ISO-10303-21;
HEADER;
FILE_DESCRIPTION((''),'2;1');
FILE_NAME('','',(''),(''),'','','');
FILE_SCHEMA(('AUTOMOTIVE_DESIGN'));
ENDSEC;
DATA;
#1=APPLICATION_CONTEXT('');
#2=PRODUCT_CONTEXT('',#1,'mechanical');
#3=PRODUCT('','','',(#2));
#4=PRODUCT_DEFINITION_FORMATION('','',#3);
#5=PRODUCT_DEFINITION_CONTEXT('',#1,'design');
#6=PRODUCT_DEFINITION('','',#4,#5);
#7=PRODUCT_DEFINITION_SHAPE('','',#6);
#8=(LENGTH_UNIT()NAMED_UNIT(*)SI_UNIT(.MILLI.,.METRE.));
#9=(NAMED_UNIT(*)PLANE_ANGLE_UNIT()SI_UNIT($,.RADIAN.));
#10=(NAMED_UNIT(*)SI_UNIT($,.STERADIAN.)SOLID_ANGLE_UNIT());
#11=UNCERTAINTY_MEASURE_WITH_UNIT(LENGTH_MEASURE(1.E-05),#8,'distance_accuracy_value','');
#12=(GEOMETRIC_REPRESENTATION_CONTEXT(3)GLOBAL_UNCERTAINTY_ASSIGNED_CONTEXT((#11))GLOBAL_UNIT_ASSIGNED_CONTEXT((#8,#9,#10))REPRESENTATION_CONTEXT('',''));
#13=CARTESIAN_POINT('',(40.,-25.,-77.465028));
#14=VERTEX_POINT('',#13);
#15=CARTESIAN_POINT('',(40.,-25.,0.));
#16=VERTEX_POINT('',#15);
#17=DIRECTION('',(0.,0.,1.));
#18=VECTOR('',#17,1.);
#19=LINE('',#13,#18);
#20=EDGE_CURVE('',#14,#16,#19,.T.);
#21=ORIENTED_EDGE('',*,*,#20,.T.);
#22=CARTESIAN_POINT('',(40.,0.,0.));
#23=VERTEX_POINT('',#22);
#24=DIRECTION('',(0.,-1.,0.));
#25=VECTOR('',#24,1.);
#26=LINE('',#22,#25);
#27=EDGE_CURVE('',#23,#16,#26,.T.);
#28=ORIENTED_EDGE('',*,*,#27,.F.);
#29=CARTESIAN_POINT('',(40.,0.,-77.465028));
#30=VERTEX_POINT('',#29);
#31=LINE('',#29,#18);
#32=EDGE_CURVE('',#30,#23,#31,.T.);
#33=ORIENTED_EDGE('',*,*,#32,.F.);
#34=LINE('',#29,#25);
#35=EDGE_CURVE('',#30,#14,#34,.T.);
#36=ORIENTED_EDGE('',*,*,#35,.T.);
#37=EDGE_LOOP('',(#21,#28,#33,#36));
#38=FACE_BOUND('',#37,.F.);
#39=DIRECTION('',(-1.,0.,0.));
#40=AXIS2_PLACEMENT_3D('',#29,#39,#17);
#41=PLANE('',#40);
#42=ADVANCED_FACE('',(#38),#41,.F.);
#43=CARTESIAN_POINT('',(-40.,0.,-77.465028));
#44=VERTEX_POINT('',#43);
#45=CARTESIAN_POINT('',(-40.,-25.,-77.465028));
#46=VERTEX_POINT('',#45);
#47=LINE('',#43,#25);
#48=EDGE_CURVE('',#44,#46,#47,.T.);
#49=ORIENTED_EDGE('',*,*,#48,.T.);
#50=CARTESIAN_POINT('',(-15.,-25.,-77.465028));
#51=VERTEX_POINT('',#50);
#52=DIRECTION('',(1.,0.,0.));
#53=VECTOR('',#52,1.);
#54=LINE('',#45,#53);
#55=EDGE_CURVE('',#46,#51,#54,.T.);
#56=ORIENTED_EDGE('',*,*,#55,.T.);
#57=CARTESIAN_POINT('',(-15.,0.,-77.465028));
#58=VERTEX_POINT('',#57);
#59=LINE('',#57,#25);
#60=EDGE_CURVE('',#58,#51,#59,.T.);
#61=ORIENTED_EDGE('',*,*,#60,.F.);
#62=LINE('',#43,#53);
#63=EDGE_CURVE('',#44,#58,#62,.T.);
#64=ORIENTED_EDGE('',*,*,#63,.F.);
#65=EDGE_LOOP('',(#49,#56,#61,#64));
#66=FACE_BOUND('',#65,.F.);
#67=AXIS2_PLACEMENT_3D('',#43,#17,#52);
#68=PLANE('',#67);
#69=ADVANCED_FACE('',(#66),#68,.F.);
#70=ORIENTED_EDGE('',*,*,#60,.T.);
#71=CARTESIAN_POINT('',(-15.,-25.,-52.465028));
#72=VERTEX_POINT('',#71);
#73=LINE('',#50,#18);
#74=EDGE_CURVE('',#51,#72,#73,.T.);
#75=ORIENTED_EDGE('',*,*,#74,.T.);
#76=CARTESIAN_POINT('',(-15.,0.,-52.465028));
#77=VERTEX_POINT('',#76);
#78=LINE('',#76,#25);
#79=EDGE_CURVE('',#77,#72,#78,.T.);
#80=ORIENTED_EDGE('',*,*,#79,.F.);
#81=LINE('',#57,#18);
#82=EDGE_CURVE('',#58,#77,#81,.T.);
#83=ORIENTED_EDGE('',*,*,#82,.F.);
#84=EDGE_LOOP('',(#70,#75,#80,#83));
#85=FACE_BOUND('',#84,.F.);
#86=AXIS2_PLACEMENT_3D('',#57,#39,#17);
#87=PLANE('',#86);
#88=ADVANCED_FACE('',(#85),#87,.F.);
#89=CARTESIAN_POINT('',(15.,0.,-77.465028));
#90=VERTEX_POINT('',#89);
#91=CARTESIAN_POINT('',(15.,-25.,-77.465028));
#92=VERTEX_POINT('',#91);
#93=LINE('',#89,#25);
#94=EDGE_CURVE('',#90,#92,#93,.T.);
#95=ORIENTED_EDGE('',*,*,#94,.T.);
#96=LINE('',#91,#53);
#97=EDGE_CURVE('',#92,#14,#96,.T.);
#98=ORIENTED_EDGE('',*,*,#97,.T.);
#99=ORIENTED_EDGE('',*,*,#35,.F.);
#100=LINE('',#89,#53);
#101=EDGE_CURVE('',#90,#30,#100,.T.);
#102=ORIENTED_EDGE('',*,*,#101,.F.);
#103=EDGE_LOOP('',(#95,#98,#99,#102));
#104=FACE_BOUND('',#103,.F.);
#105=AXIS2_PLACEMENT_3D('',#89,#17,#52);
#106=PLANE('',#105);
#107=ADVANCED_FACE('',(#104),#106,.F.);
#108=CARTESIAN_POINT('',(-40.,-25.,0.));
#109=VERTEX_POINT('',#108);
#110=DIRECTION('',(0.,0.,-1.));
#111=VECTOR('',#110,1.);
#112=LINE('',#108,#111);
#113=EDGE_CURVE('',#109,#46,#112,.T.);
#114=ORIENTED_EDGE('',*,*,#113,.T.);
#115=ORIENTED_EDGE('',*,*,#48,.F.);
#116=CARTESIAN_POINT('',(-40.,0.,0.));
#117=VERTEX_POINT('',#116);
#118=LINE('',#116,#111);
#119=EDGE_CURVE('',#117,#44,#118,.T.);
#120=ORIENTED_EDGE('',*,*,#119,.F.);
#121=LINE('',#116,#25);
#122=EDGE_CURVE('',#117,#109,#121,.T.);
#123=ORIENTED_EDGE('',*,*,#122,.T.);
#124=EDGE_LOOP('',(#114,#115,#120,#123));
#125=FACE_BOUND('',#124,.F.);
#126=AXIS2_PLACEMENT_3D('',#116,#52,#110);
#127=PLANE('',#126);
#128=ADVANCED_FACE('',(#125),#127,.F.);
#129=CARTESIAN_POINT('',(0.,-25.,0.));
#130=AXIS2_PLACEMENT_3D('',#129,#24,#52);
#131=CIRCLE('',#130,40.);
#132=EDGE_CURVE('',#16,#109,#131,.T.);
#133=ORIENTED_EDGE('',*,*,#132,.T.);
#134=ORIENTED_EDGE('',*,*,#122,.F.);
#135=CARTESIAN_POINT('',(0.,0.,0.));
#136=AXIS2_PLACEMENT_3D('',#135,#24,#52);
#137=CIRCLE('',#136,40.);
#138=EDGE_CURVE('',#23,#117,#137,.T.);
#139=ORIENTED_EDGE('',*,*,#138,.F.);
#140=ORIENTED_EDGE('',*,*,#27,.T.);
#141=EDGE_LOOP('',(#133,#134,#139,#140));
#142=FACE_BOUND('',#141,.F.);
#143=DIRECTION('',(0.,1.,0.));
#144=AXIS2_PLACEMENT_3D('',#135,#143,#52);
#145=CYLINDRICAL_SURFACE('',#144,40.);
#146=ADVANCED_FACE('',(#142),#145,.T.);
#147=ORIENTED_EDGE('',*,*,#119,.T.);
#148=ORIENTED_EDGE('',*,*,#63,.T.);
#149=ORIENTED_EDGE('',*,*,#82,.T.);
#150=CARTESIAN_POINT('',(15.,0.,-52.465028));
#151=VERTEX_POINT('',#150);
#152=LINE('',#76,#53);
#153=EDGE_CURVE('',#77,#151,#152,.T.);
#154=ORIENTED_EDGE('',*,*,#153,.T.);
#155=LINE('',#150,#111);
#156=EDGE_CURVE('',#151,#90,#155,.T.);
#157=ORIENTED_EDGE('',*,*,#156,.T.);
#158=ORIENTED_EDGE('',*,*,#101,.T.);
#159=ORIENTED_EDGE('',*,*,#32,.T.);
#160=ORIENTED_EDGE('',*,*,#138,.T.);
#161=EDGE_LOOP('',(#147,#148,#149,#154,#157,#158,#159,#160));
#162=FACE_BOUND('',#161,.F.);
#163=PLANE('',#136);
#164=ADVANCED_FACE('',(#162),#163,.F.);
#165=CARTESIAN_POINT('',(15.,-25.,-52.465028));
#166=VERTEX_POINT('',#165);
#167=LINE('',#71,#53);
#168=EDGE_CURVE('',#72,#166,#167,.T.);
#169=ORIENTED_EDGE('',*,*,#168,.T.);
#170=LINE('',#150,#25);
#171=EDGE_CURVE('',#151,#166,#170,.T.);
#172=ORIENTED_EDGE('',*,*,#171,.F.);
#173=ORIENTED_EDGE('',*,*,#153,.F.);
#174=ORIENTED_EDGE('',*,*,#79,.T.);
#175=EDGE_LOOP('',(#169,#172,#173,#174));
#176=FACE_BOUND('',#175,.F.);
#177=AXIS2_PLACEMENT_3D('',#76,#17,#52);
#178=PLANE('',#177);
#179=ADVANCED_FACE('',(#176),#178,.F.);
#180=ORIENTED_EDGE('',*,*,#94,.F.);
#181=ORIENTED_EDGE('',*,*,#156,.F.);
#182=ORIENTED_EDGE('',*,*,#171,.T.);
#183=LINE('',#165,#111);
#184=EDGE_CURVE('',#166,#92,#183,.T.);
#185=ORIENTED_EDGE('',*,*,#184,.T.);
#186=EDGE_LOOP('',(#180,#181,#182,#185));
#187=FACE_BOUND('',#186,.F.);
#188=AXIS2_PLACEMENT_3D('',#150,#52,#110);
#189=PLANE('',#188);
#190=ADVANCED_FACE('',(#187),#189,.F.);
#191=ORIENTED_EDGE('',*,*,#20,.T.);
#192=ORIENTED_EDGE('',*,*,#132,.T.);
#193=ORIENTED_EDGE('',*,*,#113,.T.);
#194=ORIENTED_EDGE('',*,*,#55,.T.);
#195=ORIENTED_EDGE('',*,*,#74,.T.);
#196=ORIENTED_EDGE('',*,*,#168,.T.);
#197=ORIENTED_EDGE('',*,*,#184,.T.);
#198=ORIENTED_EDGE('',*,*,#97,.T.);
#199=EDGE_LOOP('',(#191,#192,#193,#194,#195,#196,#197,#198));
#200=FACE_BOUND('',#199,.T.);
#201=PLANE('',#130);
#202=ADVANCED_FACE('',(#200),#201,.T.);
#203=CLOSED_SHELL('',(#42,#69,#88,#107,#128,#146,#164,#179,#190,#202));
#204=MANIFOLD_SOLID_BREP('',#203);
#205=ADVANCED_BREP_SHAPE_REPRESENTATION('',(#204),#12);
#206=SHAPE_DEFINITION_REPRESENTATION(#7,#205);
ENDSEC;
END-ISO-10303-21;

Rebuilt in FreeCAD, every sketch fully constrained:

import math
import FreeCAD as App
import Part
import Sketcher
from FreeCAD import Vector
Q = App.Units.Quantity

doc = App.newDocument("Part")
body = doc.addObject("PartDesign::Body", "Body")

sketch1 = body.newObject("Sketcher::SketchObject", "Sketch")
sketch1.AttachmentSupport = (doc.getObject("XZ_Plane"), [""])
sketch1.MapMode = "FlatFace"
sketch1.addGeometry(Part.ArcOfCircle(Part.Circle(Vector(0, 0, 0), Vector(0, 0, 1), 40), math.radians(0), math.radians(180)), False)
sketch1.addGeometry(Part.LineSegment(Vector(-40, 0, 0), Vector(-40, -77.465028, 0)), False)
sketch1.addGeometry(Part.LineSegment(Vector(-40, -77.465028, 0), Vector(-15, -77.465028, 0)), False)
sketch1.addGeometry(Part.LineSegment(Vector(-15, -77.465028, 0), Vector(-15, -52.465028, 0)), False)
sketch1.addGeometry(Part.LineSegment(Vector(-15, -52.465028, 0), Vector(15, -52.465028, 0)), False)
sketch1.addGeometry(Part.LineSegment(Vector(15, -52.465028, 0), Vector(15, -77.465028, 0)), False)
sketch1.addGeometry(Part.LineSegment(Vector(15, -77.465028, 0), Vector(40, -77.465028, 0)), False)
sketch1.addGeometry(Part.LineSegment(Vector(40, -77.465028, 0), Vector(40, 0, 0)), False)
sketch1.addConstraint(Sketcher.Constraint("Tangent", 0, 2, 1, 1))
sketch1.addConstraint(Sketcher.Constraint("Coincident", 1, 2, 2, 1))
sketch1.addConstraint(Sketcher.Constraint("Coincident", 2, 2, 3, 1))
sketch1.addConstraint(Sketcher.Constraint("Coincident", 3, 2, 4, 1))
sketch1.addConstraint(Sketcher.Constraint("Coincident", 4, 2, 5, 1))
sketch1.addConstraint(Sketcher.Constraint("Coincident", 5, 2, 6, 1))
sketch1.addConstraint(Sketcher.Constraint("Coincident", 6, 2, 7, 1))
sketch1.addConstraint(Sketcher.Constraint("Tangent", 7, 2, 0, 1))
sketch1.addConstraint(Sketcher.Constraint("Vertical", 1))
sketch1.addConstraint(Sketcher.Constraint("Horizontal", 2))
sketch1.addConstraint(Sketcher.Constraint("Vertical", 3))
sketch1.addConstraint(Sketcher.Constraint("Horizontal", 4))
sketch1.addConstraint(Sketcher.Constraint("Vertical", 5))
sketch1.addConstraint(Sketcher.Constraint("Horizontal", 6))
sketch1.addConstraint(Sketcher.Constraint("Vertical", 7))
sketch1.addConstraint(Sketcher.Constraint("Coincident", 0, 3, -1, 1))
sketch1.addConstraint(Sketcher.Constraint("Symmetric", 2, 2, 5, 2, -2))
sketch1.addConstraint(Sketcher.Constraint("Equal", 6, 3))
sketch1.addConstraint(Sketcher.Constraint("Radius", 0, Q("40 mm")))
sketch1.addConstraint(Sketcher.Constraint("DistanceX", 2, 1, 2, 2, Q("25 mm")))
sketch1.addConstraint(Sketcher.Constraint("DistanceY", 1, 2, 1, 1, Q("77.465028 mm")))
pad1 = body.newObject("PartDesign::Pad", "Pad")
pad1.Profile = sketch1
pad1.Length = 25

doc.recompute()
